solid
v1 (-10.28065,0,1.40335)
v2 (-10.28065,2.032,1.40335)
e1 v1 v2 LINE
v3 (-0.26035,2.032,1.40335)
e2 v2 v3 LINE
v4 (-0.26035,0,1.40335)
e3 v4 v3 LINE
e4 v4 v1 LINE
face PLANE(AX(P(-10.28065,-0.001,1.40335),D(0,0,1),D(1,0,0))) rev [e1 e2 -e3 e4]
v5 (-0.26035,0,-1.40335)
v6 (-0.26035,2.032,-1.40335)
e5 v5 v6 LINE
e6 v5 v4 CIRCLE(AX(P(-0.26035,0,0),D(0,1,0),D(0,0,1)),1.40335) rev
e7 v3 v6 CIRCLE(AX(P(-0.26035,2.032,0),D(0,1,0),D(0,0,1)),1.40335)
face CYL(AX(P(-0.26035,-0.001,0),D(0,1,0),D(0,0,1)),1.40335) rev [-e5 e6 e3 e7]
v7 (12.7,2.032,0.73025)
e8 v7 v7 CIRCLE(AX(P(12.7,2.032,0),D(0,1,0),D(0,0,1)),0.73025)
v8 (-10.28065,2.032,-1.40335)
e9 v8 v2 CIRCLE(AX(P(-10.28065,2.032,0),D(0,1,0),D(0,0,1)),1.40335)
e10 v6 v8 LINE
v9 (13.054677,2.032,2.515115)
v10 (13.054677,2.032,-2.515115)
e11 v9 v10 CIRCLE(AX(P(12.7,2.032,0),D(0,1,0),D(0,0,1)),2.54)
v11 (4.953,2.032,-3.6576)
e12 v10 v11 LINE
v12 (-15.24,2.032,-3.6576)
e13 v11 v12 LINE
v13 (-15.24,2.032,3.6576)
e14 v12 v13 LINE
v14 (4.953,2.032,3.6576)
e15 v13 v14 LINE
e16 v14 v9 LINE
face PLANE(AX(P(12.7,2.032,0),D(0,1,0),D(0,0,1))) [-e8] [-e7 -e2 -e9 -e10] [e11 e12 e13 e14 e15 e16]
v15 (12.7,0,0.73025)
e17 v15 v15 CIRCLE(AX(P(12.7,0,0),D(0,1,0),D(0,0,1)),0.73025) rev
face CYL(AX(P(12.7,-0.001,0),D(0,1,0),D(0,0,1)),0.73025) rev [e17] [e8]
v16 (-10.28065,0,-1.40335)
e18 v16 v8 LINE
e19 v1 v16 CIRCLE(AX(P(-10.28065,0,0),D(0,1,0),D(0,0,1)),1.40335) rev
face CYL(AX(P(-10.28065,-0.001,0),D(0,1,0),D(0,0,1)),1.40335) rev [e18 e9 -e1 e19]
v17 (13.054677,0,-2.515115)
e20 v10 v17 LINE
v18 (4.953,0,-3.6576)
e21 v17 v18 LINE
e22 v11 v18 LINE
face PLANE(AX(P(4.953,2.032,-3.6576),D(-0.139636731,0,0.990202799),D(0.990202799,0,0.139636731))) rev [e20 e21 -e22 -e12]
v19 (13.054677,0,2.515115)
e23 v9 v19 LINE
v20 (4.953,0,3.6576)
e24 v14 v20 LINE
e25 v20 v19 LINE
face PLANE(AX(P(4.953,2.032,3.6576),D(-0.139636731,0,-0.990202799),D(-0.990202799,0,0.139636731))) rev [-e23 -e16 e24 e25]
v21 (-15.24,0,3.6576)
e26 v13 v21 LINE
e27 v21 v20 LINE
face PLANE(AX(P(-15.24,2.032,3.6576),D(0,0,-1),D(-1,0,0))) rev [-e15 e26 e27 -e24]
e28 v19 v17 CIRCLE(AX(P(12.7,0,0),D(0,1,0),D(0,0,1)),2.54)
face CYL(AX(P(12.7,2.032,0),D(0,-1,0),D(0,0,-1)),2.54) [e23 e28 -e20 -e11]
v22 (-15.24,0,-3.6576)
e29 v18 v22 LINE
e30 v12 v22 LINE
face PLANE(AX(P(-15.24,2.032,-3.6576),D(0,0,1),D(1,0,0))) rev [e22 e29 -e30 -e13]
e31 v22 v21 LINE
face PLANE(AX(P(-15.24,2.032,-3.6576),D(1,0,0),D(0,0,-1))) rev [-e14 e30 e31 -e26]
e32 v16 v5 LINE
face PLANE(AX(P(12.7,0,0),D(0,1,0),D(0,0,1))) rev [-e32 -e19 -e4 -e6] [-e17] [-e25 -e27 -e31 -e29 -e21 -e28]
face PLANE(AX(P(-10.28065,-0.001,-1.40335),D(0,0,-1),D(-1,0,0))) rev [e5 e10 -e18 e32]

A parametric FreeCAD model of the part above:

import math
import FreeCAD as App
import Part
import Sketcher

V = App.Vector
Q = App.Units.Quantity

doc = App.newDocument("Part")
body = doc.addObject("PartDesign::Body", "Body")

sketch1 = body.newObject("Sketcher::SketchObject", "Sketch")
sketch1.AttachmentSupport = (doc.getObject("XZ_Plane"), [""])
sketch1.MapMode = "FlatFace"
sketch1.addGeometry(Part.LineSegment(V(-15.2, -3.7, 0), V(-15.2, 3.7, 0)), False)
sketch1.addGeometry(Part.LineSegment(V(-15.2, 3.7, 0), V(5, 3.7, 0)), False)
sketch1.addGeometry(Part.LineSegment(V(5, 3.7, 0), V(13.1, 2.5, 0)), False)
sketch1.addGeometry(Part.ArcOfCircle(Part.Circle(V(12.7, 0, 0), V(0, 0, 1), 2.5), math.radians(-82), math.radians(82)), False)
sketch1.addGeometry(Part.LineSegment(V(13.1, -2.5, 0), V(5, -3.7, 0)), False)
sketch1.addGeometry(Part.LineSegment(V(5, -3.7, 0), V(-15.2, -3.7, 0)), False)
sketch1.addConstraint(Sketcher.Constraint("Coincident", 0, 2, 1, 1))
sketch1.addConstraint(Sketcher.Constraint("Coincident", 1, 2, 2, 1))
sketch1.addConstraint(Sketcher.Constraint("Tangent", 2, 2, 3, 2))
sketch1.addConstraint(Sketcher.Constraint("Tangent", 3, 1, 4, 1))
sketch1.addConstraint(Sketcher.Constraint("Coincident", 4, 2, 5, 1))
sketch1.addConstraint(Sketcher.Constraint("Coincident", 5, 2, 0, 1))
sketch1.addConstraint(Sketcher.Constraint("Vertical", 0))
sketch1.addConstraint(Sketcher.Constraint("Horizontal", 1))
sketch1.addConstraint(Sketcher.Constraint("Horizontal", 5))
sketch1.addConstraint(Sketcher.Constraint("Symmetric", 2, 2, 3, 1, -1))
sketch1.addConstraint(Sketcher.Constraint("Vertical", 1, 2, 4, 2))
sketch1.addConstraint(Sketcher.Constraint("Radius", 3, Q("0.1 in")))
sketch1.addConstraint(Sketcher.Constraint("DistanceX", -1, 1, 3, 3, Q("0.5 in")))
sketch1.addConstraint(Sketcher.Constraint("DistanceX", 0, 2, -1, 1, Q("0.6 in")))
sketch1.addConstraint(Sketcher.Constraint("DistanceX", 1, 1, 1, 2, Q("0.795 in")))
sketch1.addConstraint(Sketcher.Constraint("DistanceY", 0, 1, 0, 2, Q("0.288 in")))
pad1 = body.newObject("PartDesign::Pad", "Pad")
pad1.Profile = sketch1
pad1.Length = Q("0.08 in")
pad1.Reversed = True

sketch2 = body.newObject("Sketcher::SketchObject", "Sketch001")
sketch2.AttachmentSupport = (doc.getObject("XZ_Plane"), [""])
sketch2.MapMode = "FlatFace"
sketch2.AttachmentOffset = App.Placement(V(0, 0, -0.08 * 25.4), App.Rotation())
sketch2.addGeometry(Part.LineSegment(V(-0.3, -1.4, 0), V(-10.3, -1.4, 0)), False)
sketch2.addGeometry(Part.ArcOfCircle(Part.Circle(V(-10.3, 0, 0), V(0, 0, 1), 1.4), math.radians(90), math.radians(270)), False)
sketch2.addGeometry(Part.LineSegment(V(-10.3, 1.4, 0), V(-0.3, 1.4, 0)), False)
sketch2.addGeometry(Part.ArcOfCircle(Part.Circle(V(-0.3, 0, 0), V(0, 0, 1), 1.4), math.radians(-90), math.radians(90)), False)
sketch2.addConstraint(Sketcher.Constraint("Tangent", 0, 2, 1, 2))
sketch2.addConstraint(Sketcher.Constraint("Tangent", 1, 1, 2, 1))
sketch2.addConstraint(Sketcher.Constraint("Tangent", 2, 2, 3, 2))
sketch2.addConstraint(Sketcher.Constraint("Tangent", 3, 1, 0, 1))
sketch2.addConstraint(Sketcher.Constraint("Horizontal", 0))
sketch2.addConstraint(Sketcher.Constraint("Horizontal", 2))
sketch2.addConstraint(Sketcher.Constraint("PointOnObject", 1, 3, -1))
sketch2.addConstraint(Sketcher.Constraint("DistanceX", 0, 2, 0, 1, Q("0.3945 in")))
sketch2.addConstraint(Sketcher.Constraint("Radius", 1, 1.40335))
sketch2.addConstraint(Sketcher.Constraint("DistanceX", 1, 3, -1, 1, 10.28065))
pocket1 = body.newObject("PartDesign::Pocket", "Pocket")
pocket1.Profile = sketch2
pocket1.Type = "UpToFirst"
pocket1.Reversed = True

sketch3 = body.newObject("Sketcher::SketchObject", "Sketch002")
sketch3.AttachmentSupport = (doc.getObject("XZ_Plane"), [""])
sketch3.MapMode = "FlatFace"
sketch3.AttachmentOffset = App.Placement(V(0, 0, -0.08 * 25.4), App.Rotation())
sketch3.addGeometry(Part.Circle(V(12.7, 0, 0), V(0, 0, 1), 0.7), False)
sketch3.addConstraint(Sketcher.Constraint("PointOnObject", 0, 3, -1))
sketch3.addConstraint(Sketcher.Constraint("Diameter", 0, Q("0.0575 in")))
sketch3.addConstraint(Sketcher.Constraint("DistanceX", -1, 1, 0, 3, Q("0.5 in")))
pocket2 = body.newObject("PartDesign::Pocket", "Pocket001")
pocket2.Profile = sketch3
pocket2.Type = "UpToFirst"
pocket2.Reversed = True

doc.recompute()
